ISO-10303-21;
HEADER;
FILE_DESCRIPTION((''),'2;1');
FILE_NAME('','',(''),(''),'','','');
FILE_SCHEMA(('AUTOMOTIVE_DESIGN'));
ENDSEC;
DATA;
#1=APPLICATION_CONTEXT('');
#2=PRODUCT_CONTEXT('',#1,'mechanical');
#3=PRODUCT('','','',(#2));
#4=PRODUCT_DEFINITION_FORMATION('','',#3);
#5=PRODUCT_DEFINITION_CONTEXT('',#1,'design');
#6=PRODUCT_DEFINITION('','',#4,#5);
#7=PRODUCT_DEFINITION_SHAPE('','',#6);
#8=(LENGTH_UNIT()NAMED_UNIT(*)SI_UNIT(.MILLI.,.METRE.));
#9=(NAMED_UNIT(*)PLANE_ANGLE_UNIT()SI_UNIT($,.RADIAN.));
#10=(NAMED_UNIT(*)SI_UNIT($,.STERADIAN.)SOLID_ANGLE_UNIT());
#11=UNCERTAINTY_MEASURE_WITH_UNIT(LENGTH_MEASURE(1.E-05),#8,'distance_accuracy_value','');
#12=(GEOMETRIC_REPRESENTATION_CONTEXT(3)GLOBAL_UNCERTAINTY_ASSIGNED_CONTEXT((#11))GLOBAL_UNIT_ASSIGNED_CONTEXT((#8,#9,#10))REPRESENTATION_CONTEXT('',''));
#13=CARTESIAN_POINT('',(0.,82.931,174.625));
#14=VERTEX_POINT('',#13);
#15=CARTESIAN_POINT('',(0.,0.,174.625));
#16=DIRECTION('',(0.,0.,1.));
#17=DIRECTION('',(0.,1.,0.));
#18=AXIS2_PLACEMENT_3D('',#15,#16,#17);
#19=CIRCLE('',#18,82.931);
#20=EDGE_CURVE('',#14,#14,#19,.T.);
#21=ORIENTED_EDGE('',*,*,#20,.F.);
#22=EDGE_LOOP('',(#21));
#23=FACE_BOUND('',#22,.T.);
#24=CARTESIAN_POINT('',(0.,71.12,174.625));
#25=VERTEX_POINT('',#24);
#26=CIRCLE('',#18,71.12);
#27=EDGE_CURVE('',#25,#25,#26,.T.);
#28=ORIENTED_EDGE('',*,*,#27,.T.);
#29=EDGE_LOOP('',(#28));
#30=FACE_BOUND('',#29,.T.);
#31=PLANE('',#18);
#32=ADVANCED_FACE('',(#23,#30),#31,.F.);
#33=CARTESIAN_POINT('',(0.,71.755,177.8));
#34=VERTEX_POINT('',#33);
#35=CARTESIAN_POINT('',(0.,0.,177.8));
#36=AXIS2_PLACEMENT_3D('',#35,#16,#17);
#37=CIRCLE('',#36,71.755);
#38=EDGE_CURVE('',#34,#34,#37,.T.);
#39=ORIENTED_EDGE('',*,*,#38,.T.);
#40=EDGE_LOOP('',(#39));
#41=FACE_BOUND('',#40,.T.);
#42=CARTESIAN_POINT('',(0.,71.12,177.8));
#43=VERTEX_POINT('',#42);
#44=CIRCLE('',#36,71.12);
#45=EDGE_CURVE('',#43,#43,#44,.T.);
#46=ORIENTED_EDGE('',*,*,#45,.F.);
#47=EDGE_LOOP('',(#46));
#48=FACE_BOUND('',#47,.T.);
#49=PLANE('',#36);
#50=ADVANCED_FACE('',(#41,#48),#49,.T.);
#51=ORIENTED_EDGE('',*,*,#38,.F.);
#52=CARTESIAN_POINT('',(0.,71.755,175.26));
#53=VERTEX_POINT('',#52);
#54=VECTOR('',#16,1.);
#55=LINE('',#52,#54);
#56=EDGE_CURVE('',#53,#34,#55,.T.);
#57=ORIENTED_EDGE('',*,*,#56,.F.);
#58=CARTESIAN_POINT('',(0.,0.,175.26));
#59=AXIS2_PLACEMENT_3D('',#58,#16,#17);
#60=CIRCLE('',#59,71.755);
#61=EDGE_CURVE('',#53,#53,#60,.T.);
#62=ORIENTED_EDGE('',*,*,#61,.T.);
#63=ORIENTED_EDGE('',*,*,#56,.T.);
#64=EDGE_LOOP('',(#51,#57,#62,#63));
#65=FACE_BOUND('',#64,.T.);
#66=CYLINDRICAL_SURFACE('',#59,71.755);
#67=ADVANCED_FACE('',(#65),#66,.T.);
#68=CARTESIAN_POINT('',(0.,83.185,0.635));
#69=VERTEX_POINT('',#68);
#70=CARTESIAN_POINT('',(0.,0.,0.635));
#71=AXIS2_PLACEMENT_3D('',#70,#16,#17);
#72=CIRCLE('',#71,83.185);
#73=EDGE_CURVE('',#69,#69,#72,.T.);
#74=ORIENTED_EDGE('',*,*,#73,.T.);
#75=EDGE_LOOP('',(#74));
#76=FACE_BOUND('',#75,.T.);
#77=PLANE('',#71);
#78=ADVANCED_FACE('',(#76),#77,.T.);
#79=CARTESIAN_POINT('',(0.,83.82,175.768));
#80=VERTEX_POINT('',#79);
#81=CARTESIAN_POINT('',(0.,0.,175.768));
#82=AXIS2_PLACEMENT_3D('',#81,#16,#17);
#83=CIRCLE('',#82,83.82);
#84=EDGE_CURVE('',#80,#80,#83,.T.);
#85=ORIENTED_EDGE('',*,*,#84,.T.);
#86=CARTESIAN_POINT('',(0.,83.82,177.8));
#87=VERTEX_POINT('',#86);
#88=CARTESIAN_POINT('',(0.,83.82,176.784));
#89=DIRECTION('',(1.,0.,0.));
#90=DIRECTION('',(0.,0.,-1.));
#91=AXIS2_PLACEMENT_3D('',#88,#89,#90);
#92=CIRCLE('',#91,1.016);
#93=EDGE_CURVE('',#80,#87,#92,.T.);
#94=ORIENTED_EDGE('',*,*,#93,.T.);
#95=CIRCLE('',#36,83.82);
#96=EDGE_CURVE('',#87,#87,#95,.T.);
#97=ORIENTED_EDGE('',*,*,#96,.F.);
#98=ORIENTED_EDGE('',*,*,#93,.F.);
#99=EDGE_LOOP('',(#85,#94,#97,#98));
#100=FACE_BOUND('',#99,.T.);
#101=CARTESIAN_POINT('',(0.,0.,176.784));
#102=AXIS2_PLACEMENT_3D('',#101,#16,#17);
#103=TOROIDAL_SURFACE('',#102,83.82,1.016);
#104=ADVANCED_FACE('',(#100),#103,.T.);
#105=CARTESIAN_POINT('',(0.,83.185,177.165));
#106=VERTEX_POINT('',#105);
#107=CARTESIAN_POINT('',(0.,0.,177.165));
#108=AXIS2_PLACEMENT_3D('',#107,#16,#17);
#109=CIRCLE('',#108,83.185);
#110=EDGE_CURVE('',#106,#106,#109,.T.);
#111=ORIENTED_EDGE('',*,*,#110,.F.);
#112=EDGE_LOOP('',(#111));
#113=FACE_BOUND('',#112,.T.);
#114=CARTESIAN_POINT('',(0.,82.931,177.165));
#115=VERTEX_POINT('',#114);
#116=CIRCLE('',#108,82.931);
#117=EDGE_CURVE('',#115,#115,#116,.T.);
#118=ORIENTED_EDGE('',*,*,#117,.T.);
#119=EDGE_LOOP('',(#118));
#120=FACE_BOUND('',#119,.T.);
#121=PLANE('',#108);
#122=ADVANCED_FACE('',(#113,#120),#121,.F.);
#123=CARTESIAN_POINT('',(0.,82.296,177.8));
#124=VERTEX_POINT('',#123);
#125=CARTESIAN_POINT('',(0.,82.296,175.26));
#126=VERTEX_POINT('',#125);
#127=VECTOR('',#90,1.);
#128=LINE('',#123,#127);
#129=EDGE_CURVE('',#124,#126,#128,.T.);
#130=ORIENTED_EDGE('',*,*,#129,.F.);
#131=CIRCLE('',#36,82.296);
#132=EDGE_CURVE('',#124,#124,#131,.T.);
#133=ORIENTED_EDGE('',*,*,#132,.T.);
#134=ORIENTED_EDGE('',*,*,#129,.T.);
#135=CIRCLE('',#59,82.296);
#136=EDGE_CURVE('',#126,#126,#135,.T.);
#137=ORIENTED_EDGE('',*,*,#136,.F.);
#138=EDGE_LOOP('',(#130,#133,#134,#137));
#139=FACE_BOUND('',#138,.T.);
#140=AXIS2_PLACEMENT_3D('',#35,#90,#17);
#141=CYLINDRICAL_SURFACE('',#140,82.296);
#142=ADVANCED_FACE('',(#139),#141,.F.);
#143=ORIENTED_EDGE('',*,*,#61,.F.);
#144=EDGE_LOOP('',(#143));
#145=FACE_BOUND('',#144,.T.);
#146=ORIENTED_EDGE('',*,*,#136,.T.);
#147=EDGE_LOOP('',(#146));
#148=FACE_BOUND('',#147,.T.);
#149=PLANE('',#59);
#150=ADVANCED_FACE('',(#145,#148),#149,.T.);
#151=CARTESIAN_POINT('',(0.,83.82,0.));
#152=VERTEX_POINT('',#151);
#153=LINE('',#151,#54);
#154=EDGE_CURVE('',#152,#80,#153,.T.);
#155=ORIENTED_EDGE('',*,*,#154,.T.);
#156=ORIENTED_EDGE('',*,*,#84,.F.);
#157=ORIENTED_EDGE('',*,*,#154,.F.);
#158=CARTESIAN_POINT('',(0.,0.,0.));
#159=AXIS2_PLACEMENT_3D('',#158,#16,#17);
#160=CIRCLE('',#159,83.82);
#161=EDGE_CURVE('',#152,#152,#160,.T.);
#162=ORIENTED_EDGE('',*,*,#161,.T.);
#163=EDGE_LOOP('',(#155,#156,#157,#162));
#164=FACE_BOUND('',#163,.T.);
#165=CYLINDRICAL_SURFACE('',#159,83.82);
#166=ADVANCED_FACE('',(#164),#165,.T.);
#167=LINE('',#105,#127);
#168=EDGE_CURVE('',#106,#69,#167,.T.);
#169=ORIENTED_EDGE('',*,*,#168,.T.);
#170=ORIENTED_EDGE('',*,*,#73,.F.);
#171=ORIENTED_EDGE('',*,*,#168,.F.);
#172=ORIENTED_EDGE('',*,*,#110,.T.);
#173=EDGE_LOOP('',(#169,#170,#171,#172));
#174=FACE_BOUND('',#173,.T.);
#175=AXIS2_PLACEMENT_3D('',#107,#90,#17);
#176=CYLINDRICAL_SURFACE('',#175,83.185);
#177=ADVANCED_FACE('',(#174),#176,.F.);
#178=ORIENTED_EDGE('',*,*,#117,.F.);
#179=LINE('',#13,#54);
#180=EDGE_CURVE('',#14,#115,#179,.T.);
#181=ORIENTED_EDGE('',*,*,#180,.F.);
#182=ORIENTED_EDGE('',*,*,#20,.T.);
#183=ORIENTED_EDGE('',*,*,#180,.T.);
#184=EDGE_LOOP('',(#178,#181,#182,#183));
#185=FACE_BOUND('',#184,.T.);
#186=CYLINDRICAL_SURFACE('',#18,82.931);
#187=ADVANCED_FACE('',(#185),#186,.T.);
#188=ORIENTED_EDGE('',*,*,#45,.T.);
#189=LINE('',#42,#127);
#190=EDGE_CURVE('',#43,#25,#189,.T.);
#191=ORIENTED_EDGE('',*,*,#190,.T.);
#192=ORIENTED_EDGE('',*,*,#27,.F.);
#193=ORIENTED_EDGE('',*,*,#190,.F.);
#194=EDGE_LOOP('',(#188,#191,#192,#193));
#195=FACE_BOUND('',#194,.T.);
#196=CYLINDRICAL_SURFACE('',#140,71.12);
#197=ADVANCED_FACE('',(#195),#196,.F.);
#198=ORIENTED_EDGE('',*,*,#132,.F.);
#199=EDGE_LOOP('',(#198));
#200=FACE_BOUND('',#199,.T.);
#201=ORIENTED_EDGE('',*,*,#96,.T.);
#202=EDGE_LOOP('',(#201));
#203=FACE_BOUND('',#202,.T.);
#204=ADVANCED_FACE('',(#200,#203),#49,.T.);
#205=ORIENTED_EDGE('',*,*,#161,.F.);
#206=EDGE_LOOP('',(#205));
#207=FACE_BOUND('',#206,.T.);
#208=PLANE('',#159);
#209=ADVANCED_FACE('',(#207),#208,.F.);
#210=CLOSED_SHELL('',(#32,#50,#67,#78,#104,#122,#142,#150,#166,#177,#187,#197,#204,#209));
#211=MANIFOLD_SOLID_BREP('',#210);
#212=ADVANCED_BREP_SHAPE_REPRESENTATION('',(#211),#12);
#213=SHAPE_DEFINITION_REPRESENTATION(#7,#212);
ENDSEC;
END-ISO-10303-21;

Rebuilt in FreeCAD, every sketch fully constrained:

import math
import FreeCAD as App
import Part
import Sketcher
Q = App.Units.Quantity

doc = App.newDocument("Part")
params = doc.addObject("Spreadsheet::Sheet", "Params")
for row, (alias, value) in enumerate([
    ("sketch1_radius", "0.04 in"),
    ("sketch1_width", "3.3 in"),
    ("sketch1_height", "0.1 in"),
    ("sketch1_width2", "0.06 in"),
    ("sketch1_width3", "0.01 in"),
    ("revolution_angle", "360 deg"),
], start=1):
    params.set(f"A{row}", alias)
    params.set(f"B{row}", "=" + value)
    params.setAlias(f"B{row}", alias)

body = doc.addObject("PartDesign::Body", "Body")

# Sketch on YZ plane
sketch1 = doc.addObject("Sketcher::SketchObject", "Sketch")
body.addObject(sketch1)
sketch1.AttachmentSupport = (doc.YZ_Plane, [""])
sketch1.MapMode = "FlatFace"
sketch1.addGeometry(Part.LineSegment(App.Vector(0, 0.635, 0), App.Vector(0, 0, 0)), False)
sketch1.addGeometry(Part.LineSegment(App.Vector(0, 0, 0), App.Vector(83.82, 0, 0)), False)
sketch1.addGeometry(Part.LineSegment(App.Vector(83.82, 0, 0), App.Vector(83.82, 175.768, 0)), False)
sketch1.addGeometry(Part.ArcOfCircle(Part.Circle(App.Vector(83.82, 176.784, 0), App.Vector(0, 0, 1), 1.016), math.radians(-90), math.radians(90)), False)
sketch1.addGeometry(Part.LineSegment(App.Vector(83.82, 177.8, 0), App.Vector(82.296, 177.8, 0)), False)
sketch1.addGeometry(Part.LineSegment(App.Vector(82.296, 177.8, 0), App.Vector(82.296, 175.26, 0)), False)
sketch1.addGeometry(Part.LineSegment(App.Vector(82.296, 175.26, 0), App.Vector(71.755, 175.26, 0)), False)
sketch1.addGeometry(Part.LineSegment(App.Vector(71.755, 175.26, 0), App.Vector(71.755, 177.8, 0)), False)
sketch1.addGeometry(Part.LineSegment(App.Vector(71.755, 177.8, 0), App.Vector(71.12, 177.8, 0)), False)
sketch1.addGeometry(Part.LineSegment(App.Vector(71.12, 177.8, 0), App.Vector(71.12, 174.625, 0)), False)
sketch1.addGeometry(Part.LineSegment(App.Vector(71.12, 174.625, 0), App.Vector(82.931, 174.625, 0)), False)
sketch1.addGeometry(Part.LineSegment(App.Vector(82.931, 174.625, 0), App.Vector(82.931, 177.165, 0)), False)
sketch1.addGeometry(Part.LineSegment(App.Vector(82.931, 177.165, 0), App.Vector(83.185, 177.165, 0)), False)
sketch1.addGeometry(Part.LineSegment(App.Vector(83.185, 177.165, 0), App.Vector(83.185, 0.635, 0)), False)
sketch1.addGeometry(Part.LineSegment(App.Vector(83.185, 0.635, 0), App.Vector(0, 0.635, 0)), False)
sketch1.addConstraint(Sketcher.Constraint("Coincident", 0, 2, 1, 1))
sketch1.addConstraint(Sketcher.Constraint("Coincident", 1, 2, 2, 1))
sketch1.addConstraint(Sketcher.Constraint("Coincident", 2, 2, 3, 1))
sketch1.addConstraint(Sketcher.Constraint("Tangent", 3, 2, 4, 1))
sketch1.addConstraint(Sketcher.Constraint("Coincident", 4, 2, 5, 1))
sketch1.addConstraint(Sketcher.Constraint("Coincident", 5, 2, 6, 1))
sketch1.addConstraint(Sketcher.Constraint("Coincident", 6, 2, 7, 1))
sketch1.addConstraint(Sketcher.Constraint("Coincident", 7, 2, 8, 1))
sketch1.addConstraint(Sketcher.Constraint("Coincident", 8, 2, 9, 1))
sketch1.addConstraint(Sketcher.Constraint("Coincident", 9, 2, 10, 1))
sketch1.addConstraint(Sketcher.Constraint("Coincident", 10, 2, 11, 1))
sketch1.addConstraint(Sketcher.Constraint("Coincident", 11, 2, 12, 1))
sketch1.addConstraint(Sketcher.Constraint("Coincident", 12, 2, 13, 1))
sketch1.addConstraint(Sketcher.Constraint("Coincident", 13, 2, 14, 1))
sketch1.addConstraint(Sketcher.Constraint("Coincident", 14, 2, 0, 1))
sketch1.addConstraint(Sketcher.Constraint("Vertical", 0))
sketch1.addConstraint(Sketcher.Constraint("Horizontal", 1))
sketch1.addConstraint(Sketcher.Constraint("Vertical", 2))
sketch1.addConstraint(Sketcher.Constraint("Horizontal", 4))
sketch1.addConstraint(Sketcher.Constraint("Vertical", 5))
sketch1.addConstraint(Sketcher.Constraint("Horizontal", 6))
sketch1.addConstraint(Sketcher.Constraint("Vertical", 7))
sketch1.addConstraint(Sketcher.Constraint("Horizontal", 8))
sketch1.addConstraint(Sketcher.Constraint("Vertical", 9))
sketch1.addConstraint(Sketcher.Constraint("Horizontal", 10))
sketch1.addConstraint(Sketcher.Constraint("Vertical", 11))
sketch1.addConstraint(Sketcher.Constraint("Horizontal", 12))
sketch1.addConstraint(Sketcher.Constraint("Vertical", 13))
sketch1.addConstraint(Sketcher.Constraint("Horizontal", 14))
sketch1.addConstraint(Sketcher.Constraint("Coincident", 0, 2, -1, 1))
sketch1.addConstraint(Sketcher.Constraint("Horizontal", 4, 2, 7, 2))
sketch1.addConstraint(Sketcher.Constraint("Vertical", 3, 3, 1, 2))
sketch1.addConstraint(Sketcher.Constraint("Equal", 8, 0))
sketch1.addConstraint(Sketcher.Constraint("Equal", 7, 11))
sketch1.addConstraint(Sketcher.Constraint("Radius", 3, Q("0.04 in")))
sketch1.addConstraint(Sketcher.Constraint("DistanceX", 1, 1, 1, 2, Q("3.3 in")))
sketch1.addConstraint(Sketcher.Constraint("DistanceY", 5, 2, 5, 1, Q("0.1 in")))
sketch1.addConstraint(Sketcher.Constraint("DistanceY", -1, 1, 3, 2, Q("7 in")))
sketch1.addConstraint(Sketcher.Constraint("DistanceX", 4, 2, 4, 1, Q("0.06 in")))
sketch1.addConstraint(Sketcher.Constraint("DistanceX", 12, 1, 12, 2, Q("0.01 in")))
sketch1.addConstraint(Sketcher.Constraint("DistanceY", 13, 2, 13, 1, Q("6.95 in")))
sketch1.addConstraint(Sketcher.Constraint("DistanceX", -1, 1, 8, 2, Q("2.8 in")))
sketch1.addConstraint(Sketcher.Constraint("DistanceX", 6, 2, 6, 1, Q("0.415 in")))
sketch1.addConstraint(Sketcher.Constraint("DistanceX", 10, 1, 10, 2, Q("0.465 in")))
sketch1.setExpression("Constraints[34]", "Params.sketch1_radius")
sketch1.setExpression("Constraints[35]", "Params.sketch1_width")
sketch1.setExpression("Constraints[36]", "Params.sketch1_height")
sketch1.setExpression("Constraints[38]", "Params.sketch1_width2")
sketch1.setExpression("Constraints[39]", "Params.sketch1_width3")
revolution = doc.addObject("PartDesign::Revolution", "Revolution")
body.addObject(revolution)
revolution.Profile = sketch1
revolution.ReferenceAxis = (sketch1, ["V_Axis"])
revolution.setExpression("Angle", "Params.revolution_angle")

doc.recompute()
